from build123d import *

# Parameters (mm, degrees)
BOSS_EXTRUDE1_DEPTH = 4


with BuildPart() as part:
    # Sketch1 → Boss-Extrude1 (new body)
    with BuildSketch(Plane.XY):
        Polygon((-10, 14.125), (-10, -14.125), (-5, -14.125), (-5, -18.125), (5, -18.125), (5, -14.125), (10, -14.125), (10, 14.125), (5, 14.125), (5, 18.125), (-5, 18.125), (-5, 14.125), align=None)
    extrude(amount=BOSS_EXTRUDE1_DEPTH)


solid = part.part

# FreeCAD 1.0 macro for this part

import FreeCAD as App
import Part
import Sketcher

V = App.Vector

doc = App.newDocument("Part")
body = doc.addObject("PartDesign::Body", "Body")

# Sketch on XY plane
sketch1 = body.newObject("Sketcher::SketchObject", "Sketch")
sketch1.AttachmentSupport = (doc.getObject("XY_Plane"), [""])
sketch1.MapMode = "FlatFace"
sketch1.addGeometry([
    Part.LineSegment(V(-10, 14.125, 0), V(-10, -14.125, 0)),  # 0
    Part.LineSegment(V(-10, -14.125, 0), V(-5, -14.125, 0)),  # 1
    Part.LineSegment(V(-5, -14.125, 0), V(-5, -18.125, 0)),  # 2
    Part.LineSegment(V(-5, -18.125, 0), V(5, -18.125, 0)),  # 3
    Part.LineSegment(V(5, -18.125, 0), V(5, -14.125, 0)),  # 4
    Part.LineSegment(V(5, -14.125, 0), V(10, -14.125, 0)),  # 5
    Part.LineSegment(V(10, -14.125, 0), V(10, 14.125, 0)),  # 6
    Part.LineSegment(V(10, 14.125, 0), V(5, 14.125, 0)),  # 7
    Part.LineSegment(V(5, 14.125, 0), V(5, 18.125, 0)),  # 8
    Part.LineSegment(V(5, 18.125, 0), V(-5, 18.125, 0)),  # 9
    Part.LineSegment(V(-5, 18.125, 0), V(-5, 14.125, 0)),  # 10
    Part.LineSegment(V(-5, 14.125, 0), V(-10, 14.125, 0)),  # 11
], False)
sketch1.addConstraint([
    Sketcher.Constraint("Coincident", 0, 2, 1, 1),
    Sketcher.Constraint("Coincident", 1, 2, 2, 1),
    Sketcher.Constraint("Coincident", 2, 2, 3, 1),
    Sketcher.Constraint("Coincident", 3, 2, 4, 1),
    Sketcher.Constraint("Coincident", 4, 2, 5, 1),
    Sketcher.Constraint("Coincident", 5, 2, 6, 1),
    Sketcher.Constraint("Coincident", 6, 2, 7, 1),
    Sketcher.Constraint("Coincident", 7, 2, 8, 1),
    Sketcher.Constraint("Coincident", 8, 2, 9, 1),
    Sketcher.Constraint("Coincident", 9, 2, 10, 1),
    Sketcher.Constraint("Coincident", 10, 2, 11, 1),
    Sketcher.Constraint("Coincident", 11, 2, 0, 1),
    Sketcher.Constraint("Vertical", 0),
    Sketcher.Constraint("Horizontal", 1),
    Sketcher.Constraint("Vertical", 2),
    Sketcher.Constraint("Horizontal", 3),
    Sketcher.Constraint("Vertical", 4),
    Sketcher.Constraint("Horizontal", 5),
    Sketcher.Constraint("Vertical", 6),
    Sketcher.Constraint("Horizontal", 7),
    Sketcher.Constraint("Vertical", 8),
    Sketcher.Constraint("Horizontal", 9),
    Sketcher.Constraint("Vertical", 10),
    Sketcher.Constraint("Horizontal", 11),
    Sketcher.Constraint("Symmetric", 0, 2, 6, 2, -1, 1),
    Sketcher.Constraint("Symmetric", 2, 2, 8, 2, -1, 1),
    Sketcher.Constraint("Symmetric", 4, 2, 10, 2, -1, 1),
    Sketcher.Constraint("Symmetric", 1, 2, 4, 2, -2),
    Sketcher.Constraint("DistanceX", 1, 1, 1, 2, 5.0),
    Sketcher.Constraint("DistanceX", 3, 1, 3, 2, 10.0),
    Sketcher.Constraint("DistanceY", 2, 2, 2, 1, 4.0),
    Sketcher.Constraint("DistanceY", 0, 2, 0, 1, 28.25),
])
pad1 = body.newObject("PartDesign::Pad", "Pad")
pad1.Profile = sketch1
pad1.Length = 4

doc.recompute()
